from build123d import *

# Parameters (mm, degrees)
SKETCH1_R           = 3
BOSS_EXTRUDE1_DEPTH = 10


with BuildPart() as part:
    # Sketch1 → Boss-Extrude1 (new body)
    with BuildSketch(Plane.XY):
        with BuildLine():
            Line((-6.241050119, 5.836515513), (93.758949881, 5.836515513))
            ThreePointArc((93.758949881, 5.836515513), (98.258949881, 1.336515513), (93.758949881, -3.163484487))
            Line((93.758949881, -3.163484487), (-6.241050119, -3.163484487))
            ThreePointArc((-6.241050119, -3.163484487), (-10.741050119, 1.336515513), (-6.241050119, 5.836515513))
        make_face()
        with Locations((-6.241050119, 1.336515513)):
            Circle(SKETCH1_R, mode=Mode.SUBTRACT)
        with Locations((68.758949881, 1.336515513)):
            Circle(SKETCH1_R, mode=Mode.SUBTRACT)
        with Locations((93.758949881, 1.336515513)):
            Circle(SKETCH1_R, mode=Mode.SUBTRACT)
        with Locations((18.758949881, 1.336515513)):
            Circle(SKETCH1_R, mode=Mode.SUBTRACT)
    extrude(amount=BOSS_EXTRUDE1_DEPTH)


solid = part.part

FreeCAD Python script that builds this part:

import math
import FreeCAD as App
import Part
import Sketcher

V = App.Vector
Q = App.Units.Quantity

doc = App.newDocument("Part")
body = doc.addObject("PartDesign::Body", "Body")

# Sketch on XY plane
sketch1 = body.newObject("Sketcher::SketchObject", "Sketch")
sketch1.AttachmentSupport = (doc.getObject("XY_Plane"), [""])
sketch1.MapMode = "FlatFace"
sketch1.addGeometry([
    Part.LineSegment(V(93.8, 5.8, 0), V(-6.2, 5.8, 0)),  # 0
    Part.ArcOfCircle(Part.Circle(V(-6.2, 1.3, 0), V(0, 0, 1), 4.5), math.radians(90), math.radians(270)),  # 1
    Part.LineSegment(V(-6.2, -3.2, 0), V(93.8, -3.2, 0)),  # 2
    Part.ArcOfCircle(Part.Circle(V(93.8, 1.3, 0), V(0, 0, 1), 4.5), math.radians(-90), math.radians(90)),  # 3
    Part.Circle(V(93.8, 1.3, 0), V(0, 0, 1), 3),  # 4
    Part.Circle(V(68.8, 1.3, 0), V(0, 0, 1), 3),  # 5
    Part.Circle(V(18.8, 1.3, 0), V(0, 0, 1), 3),  # 6
    Part.Circle(V(-6.2, 1.3, 0), V(0, 0, 1), 3),  # 7
], False)
sketch1.addConstraint([
    Sketcher.Constraint("Tangent", 0, 2, 1, 1),
    Sketcher.Constraint("Tangent", 1, 2, 2, 1),
    Sketcher.Constraint("Tangent", 2, 2, 3, 1),
    Sketcher.Constraint("Tangent", 3, 2, 0, 1),
    Sketcher.Constraint("Horizontal", 0),
    Sketcher.Constraint("Horizontal", 2),
    Sketcher.Constraint("Coincident", 4, 3, 3, 3),
    Sketcher.Constraint("Coincident", 7, 3, 1, 3),
    Sketcher.Constraint("Equal", 4, 5),
    Sketcher.Constraint("Equal", 5, 6),
    Sketcher.Constraint("Equal", 6, 7),
    Sketcher.Constraint("Horizontal", 4, 3, 5, 3),
    Sketcher.Constraint("Horizontal", 5, 3, 6, 3),
    Sketcher.Constraint("Diameter", 4, Q("6 mm")),
    Sketcher.Constraint("Radius", 1, Q("4.5 mm")),
    Sketcher.Constraint("DistanceX", 0, 2, 0, 1, Q("100 mm")),
    Sketcher.Constraint("DistanceX", 5, 3, 3, 3, Q("25 mm")),
    Sketcher.Constraint("DistanceX", 1, 3, 6, 3, Q("25 mm")),
    Sketcher.Constraint("DistanceX", 1, 3, -1, 1, Q("6.24105 mm")),
    Sketcher.Constraint("DistanceY", -1, 1, 1, 3, Q("1.336516 mm")),
])
pad1 = body.newObject("PartDesign::Pad", "Pad")
pad1.Profile = sketch1
pad1.Length = 10

doc.recompute()
